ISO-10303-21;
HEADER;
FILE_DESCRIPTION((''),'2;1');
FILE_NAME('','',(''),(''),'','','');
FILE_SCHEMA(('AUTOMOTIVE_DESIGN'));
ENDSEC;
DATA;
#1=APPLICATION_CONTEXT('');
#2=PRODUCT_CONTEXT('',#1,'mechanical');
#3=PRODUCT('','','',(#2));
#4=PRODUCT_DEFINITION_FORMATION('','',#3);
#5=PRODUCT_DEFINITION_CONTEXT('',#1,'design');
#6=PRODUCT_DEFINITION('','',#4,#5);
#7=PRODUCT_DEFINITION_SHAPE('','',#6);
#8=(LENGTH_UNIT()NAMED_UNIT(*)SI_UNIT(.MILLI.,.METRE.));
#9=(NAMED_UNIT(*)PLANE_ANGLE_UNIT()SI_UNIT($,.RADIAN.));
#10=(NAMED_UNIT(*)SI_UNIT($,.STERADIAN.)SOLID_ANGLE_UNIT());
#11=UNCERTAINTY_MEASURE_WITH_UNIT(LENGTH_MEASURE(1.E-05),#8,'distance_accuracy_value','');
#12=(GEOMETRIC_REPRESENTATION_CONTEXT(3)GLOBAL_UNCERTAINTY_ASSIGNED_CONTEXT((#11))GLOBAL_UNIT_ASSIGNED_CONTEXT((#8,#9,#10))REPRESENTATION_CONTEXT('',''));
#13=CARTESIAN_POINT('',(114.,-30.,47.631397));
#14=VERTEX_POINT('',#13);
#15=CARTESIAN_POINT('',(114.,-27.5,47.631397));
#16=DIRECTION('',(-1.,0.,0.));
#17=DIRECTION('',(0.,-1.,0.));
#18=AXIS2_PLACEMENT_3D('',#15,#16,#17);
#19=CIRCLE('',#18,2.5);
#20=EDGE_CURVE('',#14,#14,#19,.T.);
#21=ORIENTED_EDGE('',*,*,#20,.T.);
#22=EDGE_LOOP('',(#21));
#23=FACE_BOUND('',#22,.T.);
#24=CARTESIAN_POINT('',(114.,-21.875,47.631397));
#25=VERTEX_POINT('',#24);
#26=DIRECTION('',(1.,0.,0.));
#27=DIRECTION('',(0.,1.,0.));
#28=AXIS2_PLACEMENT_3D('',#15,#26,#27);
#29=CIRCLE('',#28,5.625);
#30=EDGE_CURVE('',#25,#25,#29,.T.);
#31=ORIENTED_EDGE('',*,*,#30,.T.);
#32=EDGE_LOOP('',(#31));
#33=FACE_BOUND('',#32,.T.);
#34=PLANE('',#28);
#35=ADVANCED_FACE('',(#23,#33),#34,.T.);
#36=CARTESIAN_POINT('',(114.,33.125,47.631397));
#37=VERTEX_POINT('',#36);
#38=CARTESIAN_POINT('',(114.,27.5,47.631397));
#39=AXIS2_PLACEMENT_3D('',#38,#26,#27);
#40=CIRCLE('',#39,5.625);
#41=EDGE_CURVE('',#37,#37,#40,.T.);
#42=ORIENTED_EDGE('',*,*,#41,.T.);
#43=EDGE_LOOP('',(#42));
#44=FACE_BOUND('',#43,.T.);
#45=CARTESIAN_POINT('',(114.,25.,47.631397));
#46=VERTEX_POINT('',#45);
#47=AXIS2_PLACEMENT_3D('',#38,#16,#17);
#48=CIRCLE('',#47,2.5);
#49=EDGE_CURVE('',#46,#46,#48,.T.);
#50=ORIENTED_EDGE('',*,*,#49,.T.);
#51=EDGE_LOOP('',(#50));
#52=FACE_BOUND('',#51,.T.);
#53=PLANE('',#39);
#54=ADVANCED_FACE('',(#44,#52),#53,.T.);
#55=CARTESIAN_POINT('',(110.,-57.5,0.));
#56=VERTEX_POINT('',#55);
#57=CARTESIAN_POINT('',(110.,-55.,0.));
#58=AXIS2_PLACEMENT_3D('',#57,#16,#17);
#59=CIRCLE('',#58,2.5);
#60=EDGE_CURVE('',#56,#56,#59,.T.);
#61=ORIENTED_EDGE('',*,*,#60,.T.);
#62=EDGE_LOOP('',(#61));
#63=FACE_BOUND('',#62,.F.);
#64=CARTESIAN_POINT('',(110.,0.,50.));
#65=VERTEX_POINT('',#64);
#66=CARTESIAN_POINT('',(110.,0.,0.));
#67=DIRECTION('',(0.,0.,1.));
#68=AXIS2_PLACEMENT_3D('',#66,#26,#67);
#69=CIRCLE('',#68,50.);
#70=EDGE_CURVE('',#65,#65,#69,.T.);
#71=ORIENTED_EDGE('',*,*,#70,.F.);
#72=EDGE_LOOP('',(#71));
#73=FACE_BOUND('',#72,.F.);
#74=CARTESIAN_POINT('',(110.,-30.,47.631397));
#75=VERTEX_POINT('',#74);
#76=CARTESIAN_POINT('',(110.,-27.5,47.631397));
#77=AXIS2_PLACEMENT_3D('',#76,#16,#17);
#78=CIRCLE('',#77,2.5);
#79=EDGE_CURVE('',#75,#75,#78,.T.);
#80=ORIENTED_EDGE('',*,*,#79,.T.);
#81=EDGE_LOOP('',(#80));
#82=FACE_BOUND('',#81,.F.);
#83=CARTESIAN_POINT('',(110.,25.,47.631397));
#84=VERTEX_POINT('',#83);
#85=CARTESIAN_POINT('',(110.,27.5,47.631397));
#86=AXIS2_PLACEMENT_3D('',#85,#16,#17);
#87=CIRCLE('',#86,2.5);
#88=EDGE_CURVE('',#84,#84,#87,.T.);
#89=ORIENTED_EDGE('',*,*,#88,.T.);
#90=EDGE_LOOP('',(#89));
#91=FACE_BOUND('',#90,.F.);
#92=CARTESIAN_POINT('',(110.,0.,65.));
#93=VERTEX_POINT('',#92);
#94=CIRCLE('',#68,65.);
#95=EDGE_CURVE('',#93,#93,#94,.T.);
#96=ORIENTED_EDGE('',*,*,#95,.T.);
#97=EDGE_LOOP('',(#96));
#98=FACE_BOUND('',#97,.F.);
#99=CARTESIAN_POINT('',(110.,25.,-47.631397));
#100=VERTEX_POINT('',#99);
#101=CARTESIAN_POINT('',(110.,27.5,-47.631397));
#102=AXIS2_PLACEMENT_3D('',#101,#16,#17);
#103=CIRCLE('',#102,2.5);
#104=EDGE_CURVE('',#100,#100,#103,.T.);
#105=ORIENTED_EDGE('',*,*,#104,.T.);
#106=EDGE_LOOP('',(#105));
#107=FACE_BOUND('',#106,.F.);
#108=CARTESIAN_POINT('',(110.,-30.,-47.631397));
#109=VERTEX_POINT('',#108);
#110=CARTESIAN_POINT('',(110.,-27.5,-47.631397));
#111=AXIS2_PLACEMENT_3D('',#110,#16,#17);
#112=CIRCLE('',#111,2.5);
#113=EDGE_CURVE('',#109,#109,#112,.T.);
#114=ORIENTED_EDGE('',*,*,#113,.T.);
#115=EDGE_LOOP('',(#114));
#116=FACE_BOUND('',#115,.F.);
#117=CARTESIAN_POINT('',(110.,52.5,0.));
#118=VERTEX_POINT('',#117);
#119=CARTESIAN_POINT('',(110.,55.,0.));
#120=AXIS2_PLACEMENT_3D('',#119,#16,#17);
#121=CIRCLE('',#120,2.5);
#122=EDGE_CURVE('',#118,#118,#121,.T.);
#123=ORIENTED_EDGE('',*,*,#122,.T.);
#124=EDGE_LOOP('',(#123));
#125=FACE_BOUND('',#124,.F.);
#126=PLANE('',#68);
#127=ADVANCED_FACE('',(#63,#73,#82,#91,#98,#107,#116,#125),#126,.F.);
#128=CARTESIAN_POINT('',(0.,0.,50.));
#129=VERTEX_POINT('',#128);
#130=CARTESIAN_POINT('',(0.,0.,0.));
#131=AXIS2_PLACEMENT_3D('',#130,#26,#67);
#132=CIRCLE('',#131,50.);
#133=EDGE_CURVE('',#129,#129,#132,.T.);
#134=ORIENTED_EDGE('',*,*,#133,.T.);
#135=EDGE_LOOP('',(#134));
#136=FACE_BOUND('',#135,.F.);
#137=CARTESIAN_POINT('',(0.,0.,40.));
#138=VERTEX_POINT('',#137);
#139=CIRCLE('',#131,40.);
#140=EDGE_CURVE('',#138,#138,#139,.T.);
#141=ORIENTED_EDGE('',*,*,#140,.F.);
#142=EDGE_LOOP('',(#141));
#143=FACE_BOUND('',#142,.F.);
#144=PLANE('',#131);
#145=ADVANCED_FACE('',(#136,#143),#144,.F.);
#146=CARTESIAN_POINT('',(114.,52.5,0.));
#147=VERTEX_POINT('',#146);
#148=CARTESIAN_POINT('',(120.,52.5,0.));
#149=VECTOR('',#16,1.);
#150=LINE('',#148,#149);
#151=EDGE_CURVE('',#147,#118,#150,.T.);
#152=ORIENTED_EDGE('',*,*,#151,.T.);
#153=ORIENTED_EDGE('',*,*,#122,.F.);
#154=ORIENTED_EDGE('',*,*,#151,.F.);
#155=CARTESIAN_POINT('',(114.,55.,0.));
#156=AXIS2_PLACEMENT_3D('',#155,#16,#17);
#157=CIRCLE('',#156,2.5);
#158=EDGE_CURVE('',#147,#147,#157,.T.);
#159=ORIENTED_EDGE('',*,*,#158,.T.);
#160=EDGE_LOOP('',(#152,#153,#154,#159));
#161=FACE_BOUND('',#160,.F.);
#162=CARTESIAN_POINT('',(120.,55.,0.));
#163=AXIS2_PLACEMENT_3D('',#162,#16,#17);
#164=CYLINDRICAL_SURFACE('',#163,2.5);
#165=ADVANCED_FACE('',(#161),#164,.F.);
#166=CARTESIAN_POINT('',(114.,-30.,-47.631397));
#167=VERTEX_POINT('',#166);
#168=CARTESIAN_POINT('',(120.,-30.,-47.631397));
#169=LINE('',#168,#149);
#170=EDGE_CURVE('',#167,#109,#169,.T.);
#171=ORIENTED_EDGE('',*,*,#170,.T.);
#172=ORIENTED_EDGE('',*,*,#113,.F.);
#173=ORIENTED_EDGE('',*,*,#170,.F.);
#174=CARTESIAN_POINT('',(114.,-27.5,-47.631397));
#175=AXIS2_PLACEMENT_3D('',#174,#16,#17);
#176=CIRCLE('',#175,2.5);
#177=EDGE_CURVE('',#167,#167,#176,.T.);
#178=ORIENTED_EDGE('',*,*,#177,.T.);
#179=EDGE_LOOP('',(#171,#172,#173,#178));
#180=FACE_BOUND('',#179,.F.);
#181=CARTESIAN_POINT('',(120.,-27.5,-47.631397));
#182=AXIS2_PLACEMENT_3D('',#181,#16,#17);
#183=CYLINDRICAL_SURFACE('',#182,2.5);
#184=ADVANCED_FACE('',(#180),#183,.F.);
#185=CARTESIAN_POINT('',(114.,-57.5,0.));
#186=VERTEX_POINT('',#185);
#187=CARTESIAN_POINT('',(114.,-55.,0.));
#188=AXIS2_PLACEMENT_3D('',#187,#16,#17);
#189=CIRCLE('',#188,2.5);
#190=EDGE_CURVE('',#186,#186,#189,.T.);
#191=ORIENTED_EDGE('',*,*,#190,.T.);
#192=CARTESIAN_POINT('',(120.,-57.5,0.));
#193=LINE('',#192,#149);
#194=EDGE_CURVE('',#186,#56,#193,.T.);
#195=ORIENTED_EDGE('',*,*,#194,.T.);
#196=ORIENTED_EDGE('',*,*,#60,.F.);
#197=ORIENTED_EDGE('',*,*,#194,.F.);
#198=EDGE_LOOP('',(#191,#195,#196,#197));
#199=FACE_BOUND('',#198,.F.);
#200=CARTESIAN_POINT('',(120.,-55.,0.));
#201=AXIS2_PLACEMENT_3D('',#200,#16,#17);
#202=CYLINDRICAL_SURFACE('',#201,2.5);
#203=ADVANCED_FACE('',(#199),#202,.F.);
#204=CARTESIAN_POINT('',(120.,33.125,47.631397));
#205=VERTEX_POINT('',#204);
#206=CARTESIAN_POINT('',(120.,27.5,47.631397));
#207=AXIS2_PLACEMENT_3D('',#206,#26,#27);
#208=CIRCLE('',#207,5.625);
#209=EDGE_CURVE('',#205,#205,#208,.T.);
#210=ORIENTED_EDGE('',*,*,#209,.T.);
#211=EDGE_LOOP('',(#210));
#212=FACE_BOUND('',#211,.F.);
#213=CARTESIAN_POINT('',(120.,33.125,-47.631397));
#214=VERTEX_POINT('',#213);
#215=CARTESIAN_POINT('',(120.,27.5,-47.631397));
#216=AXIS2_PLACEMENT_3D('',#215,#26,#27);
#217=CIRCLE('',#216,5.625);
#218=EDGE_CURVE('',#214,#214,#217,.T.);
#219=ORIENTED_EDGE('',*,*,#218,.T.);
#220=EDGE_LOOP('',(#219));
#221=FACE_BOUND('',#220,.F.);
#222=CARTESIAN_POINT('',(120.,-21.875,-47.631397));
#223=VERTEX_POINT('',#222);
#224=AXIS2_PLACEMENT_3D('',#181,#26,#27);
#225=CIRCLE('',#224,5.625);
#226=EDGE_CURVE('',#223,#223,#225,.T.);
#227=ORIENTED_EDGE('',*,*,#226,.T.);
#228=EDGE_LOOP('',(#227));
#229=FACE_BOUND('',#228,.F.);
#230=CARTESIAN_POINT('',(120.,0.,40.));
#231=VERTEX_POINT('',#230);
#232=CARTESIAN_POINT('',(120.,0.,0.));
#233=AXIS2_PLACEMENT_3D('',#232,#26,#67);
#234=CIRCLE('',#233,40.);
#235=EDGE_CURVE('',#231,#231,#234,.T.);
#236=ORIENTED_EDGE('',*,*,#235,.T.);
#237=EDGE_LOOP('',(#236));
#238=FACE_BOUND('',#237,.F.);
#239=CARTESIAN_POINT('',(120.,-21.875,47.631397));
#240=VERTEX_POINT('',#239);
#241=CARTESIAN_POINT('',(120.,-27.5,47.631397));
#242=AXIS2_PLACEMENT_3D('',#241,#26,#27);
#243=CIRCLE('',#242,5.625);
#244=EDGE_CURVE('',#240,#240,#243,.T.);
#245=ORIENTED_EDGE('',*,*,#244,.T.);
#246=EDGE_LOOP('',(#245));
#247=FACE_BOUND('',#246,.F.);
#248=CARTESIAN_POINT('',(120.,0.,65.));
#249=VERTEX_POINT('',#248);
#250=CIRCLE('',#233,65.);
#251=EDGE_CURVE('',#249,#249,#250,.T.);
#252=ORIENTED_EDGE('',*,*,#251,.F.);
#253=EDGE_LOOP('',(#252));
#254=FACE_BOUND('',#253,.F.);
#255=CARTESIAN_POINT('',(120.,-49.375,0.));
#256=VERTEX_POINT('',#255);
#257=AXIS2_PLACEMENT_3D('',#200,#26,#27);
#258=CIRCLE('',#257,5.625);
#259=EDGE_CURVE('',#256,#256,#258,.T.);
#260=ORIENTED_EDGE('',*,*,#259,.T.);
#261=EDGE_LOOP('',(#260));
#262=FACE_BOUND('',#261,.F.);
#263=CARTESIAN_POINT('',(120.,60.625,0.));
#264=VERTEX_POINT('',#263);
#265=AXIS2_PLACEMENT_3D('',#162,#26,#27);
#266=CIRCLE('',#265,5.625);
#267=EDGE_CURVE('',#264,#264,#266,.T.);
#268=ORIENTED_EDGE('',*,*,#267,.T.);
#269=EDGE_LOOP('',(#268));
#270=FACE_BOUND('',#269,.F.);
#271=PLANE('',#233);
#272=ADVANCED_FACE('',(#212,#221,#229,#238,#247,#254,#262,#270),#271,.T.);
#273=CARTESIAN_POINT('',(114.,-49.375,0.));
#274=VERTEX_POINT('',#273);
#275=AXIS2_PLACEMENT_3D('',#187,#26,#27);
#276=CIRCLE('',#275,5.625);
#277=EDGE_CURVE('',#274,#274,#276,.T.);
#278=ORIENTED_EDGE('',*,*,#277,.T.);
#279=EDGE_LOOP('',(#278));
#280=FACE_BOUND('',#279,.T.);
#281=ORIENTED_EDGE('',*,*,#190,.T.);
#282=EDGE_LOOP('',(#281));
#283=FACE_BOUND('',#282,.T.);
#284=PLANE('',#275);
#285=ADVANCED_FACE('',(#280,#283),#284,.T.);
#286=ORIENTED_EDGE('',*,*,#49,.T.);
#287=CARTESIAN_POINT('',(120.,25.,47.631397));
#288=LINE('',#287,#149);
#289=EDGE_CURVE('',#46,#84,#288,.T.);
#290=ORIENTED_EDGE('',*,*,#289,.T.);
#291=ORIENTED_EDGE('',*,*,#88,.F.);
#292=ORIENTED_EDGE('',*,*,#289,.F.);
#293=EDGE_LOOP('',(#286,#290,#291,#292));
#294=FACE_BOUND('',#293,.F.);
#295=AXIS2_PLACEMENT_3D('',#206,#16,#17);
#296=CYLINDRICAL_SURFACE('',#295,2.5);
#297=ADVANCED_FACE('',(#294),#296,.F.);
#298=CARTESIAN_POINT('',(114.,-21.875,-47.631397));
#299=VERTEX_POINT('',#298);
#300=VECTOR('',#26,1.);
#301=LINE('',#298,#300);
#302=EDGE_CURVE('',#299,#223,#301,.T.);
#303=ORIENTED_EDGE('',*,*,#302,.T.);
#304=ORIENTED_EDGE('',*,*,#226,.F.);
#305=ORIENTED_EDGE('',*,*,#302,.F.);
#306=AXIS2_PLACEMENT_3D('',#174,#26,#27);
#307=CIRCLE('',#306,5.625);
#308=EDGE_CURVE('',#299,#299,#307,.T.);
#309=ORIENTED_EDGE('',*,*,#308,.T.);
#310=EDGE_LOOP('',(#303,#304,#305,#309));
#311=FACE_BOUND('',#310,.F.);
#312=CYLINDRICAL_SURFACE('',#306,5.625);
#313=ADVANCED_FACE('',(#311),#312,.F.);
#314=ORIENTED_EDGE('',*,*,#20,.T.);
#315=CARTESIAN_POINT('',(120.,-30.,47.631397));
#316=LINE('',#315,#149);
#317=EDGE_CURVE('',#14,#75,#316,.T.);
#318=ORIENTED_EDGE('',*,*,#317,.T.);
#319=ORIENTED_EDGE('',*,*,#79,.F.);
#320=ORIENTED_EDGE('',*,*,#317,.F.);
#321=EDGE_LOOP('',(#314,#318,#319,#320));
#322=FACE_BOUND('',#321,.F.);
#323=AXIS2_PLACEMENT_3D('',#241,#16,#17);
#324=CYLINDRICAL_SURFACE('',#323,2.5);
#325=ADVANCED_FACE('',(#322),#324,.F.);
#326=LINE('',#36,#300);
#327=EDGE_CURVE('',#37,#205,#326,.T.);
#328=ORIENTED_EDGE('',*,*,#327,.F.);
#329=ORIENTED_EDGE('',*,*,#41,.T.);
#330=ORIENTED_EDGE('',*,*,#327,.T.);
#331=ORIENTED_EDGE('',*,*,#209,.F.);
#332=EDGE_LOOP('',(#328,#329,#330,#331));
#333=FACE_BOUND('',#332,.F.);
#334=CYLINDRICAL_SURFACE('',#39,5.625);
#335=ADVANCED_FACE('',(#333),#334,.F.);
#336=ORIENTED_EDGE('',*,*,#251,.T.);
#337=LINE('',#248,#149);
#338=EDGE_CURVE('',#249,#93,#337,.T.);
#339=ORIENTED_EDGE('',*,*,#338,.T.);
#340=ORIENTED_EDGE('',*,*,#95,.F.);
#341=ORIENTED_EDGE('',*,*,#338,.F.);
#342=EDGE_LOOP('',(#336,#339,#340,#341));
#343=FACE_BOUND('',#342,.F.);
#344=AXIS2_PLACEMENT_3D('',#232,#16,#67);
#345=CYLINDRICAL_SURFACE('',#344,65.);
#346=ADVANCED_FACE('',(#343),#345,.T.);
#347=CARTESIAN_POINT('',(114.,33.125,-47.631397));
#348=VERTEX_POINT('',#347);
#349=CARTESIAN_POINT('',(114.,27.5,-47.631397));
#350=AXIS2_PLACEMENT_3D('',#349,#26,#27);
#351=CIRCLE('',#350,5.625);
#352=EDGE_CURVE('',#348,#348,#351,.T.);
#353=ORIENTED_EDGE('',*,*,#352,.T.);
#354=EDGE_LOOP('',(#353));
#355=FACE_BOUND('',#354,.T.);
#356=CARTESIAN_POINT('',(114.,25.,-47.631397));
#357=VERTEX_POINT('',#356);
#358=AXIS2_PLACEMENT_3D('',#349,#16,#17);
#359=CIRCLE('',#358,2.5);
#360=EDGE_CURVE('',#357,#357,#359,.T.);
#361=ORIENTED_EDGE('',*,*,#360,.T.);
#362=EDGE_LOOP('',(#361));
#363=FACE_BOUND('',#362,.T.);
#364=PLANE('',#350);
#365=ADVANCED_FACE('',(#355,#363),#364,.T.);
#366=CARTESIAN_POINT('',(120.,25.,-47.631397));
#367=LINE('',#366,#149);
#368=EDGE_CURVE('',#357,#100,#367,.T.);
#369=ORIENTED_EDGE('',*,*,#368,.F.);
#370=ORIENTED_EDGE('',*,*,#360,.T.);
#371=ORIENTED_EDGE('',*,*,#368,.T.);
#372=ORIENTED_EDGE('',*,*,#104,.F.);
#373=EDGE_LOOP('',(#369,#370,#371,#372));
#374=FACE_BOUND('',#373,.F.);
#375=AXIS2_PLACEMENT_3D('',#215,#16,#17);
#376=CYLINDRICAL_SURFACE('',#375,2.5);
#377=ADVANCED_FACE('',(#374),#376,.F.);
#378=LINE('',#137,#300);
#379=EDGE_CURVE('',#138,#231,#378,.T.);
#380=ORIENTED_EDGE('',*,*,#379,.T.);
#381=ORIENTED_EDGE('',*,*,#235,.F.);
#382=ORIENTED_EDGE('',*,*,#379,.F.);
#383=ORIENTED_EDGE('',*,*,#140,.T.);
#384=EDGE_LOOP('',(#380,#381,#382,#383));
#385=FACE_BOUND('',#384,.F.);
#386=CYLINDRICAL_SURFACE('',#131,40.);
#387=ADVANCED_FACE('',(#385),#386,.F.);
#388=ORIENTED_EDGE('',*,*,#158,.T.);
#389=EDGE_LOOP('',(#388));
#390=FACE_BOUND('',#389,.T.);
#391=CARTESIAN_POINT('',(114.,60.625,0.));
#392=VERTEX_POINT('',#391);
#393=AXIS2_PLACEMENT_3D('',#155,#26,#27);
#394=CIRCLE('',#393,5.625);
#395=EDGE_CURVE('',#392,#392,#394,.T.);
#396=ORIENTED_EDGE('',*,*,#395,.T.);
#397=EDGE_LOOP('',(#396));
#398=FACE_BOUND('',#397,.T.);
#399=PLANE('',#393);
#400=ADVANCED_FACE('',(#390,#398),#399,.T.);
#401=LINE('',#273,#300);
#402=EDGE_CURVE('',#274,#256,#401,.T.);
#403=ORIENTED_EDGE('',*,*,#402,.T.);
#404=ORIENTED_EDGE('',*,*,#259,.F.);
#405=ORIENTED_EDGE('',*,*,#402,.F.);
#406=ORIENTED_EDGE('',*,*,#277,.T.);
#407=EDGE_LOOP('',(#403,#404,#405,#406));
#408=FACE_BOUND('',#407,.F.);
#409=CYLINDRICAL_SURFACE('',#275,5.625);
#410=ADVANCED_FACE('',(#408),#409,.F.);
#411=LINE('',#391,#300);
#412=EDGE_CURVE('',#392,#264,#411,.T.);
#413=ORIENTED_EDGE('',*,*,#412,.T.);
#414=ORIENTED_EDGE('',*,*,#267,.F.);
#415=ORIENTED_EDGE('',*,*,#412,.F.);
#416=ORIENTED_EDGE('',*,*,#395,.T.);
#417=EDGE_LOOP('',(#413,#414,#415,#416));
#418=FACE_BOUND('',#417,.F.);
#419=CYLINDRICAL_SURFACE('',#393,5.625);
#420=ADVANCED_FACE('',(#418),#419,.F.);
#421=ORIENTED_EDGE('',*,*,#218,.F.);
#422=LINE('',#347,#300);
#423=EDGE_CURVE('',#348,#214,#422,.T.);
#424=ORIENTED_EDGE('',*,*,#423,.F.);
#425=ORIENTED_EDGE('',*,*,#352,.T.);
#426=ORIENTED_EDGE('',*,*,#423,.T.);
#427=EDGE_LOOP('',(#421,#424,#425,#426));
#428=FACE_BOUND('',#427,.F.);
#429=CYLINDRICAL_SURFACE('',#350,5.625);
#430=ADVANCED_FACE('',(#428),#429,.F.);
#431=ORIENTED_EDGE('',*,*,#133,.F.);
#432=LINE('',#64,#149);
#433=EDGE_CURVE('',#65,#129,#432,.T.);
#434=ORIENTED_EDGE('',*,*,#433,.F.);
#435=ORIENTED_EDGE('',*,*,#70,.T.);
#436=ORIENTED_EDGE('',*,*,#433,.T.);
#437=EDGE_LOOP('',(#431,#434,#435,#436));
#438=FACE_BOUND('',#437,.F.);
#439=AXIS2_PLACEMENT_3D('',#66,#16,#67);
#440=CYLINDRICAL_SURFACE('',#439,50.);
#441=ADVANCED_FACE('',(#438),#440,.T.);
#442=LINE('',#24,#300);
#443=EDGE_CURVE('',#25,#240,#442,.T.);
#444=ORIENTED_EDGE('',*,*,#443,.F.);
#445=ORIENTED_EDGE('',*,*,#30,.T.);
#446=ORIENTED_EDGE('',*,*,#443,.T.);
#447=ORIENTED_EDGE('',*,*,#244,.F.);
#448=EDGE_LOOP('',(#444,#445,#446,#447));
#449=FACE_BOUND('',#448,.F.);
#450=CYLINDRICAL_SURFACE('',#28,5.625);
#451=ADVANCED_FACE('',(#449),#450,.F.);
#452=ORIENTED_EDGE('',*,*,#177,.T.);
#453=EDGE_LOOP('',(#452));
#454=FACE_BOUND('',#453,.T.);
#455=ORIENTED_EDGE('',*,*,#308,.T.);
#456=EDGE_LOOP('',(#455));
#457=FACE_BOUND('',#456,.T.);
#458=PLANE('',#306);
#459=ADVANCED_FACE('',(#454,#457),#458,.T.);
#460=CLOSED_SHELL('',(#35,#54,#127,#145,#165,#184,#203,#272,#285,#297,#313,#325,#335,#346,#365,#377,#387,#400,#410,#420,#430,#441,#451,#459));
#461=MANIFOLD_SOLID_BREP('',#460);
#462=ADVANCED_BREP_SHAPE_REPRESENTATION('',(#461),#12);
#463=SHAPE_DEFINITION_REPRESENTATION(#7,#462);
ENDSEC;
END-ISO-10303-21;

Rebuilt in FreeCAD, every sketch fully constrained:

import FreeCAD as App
import Part
import Sketcher

V = App.Vector


def add_polygon(sketch, points):
    """Adds a closed chain of lines whose ends are joined by coincident constraints."""
    first, n = sketch.GeometryCount, len(points)
    for a, b in zip(points, points[1:] + points[:1]):
        sketch.addGeometry(Part.LineSegment(App.Vector(*a, 0), App.Vector(*b, 0)), False)
    for i in range(n):
        sketch.addConstraint(Sketcher.Constraint("Coincident", first + i, 2, first + (i + 1) % n, 1))

doc = App.newDocument("Part")
body = doc.addObject("PartDesign::Body", "Body")

# Sketch on XZ plane
sketch1 = body.newObject("Sketcher::SketchObject", "Sketch")
sketch1.AttachmentSupport = (doc.getObject("XZ_Plane"), [""])
sketch1.MapMode = "FlatFace"
add_polygon(sketch1, [(0, 50), (0, 40), (120, 40), (120, 65), (110, 65), (110, 50)])  # lines 0-5
sketch1.addConstraint(Sketcher.Constraint("Vertical", 0))
sketch1.addConstraint(Sketcher.Constraint("Horizontal", 1))
sketch1.addConstraint(Sketcher.Constraint("Vertical", 2))
sketch1.addConstraint(Sketcher.Constraint("Horizontal", 3))
sketch1.addConstraint(Sketcher.Constraint("Vertical", 4))
sketch1.addConstraint(Sketcher.Constraint("Horizontal", 5))
sketch1.addConstraint(Sketcher.Constraint("PointOnObject", 0, 2, -2))
sketch1.addConstraint(Sketcher.Constraint("Equal", 3, 0))
sketch1.addConstraint(Sketcher.Constraint("DistanceX", 1, 1, 1, 2, 120.0))
sketch1.addConstraint(Sketcher.Constraint("DistanceX", 3, 2, 3, 1, 10.0))
sketch1.addConstraint(Sketcher.Constraint("DistanceY", 2, 1, 2, 2, 25.0))
sketch1.addConstraint(Sketcher.Constraint("DistanceY", -1, 1, 0, 2, 40.0))
revolution = body.newObject("PartDesign::Revolution", "Revolution")
revolution.Profile = sketch1
revolution.ReferenceAxis = (sketch1, ["H_Axis"])
revolution.Angle = 360

# Sketch on YZ plane
sketch2 = body.newObject("Sketcher::SketchObject", "Sketch001")
sketch2.AttachmentSupport = (doc.getObject("YZ_Plane"), [""])
sketch2.MapMode = "FlatFace"
sketch2.AttachmentOffset = App.Placement(V(0, 0, 120), App.Rotation())
sketch2.addGeometry(Part.Circle(V(-27.5, 47.6, 0), V(0, 0, 1), 2.5), False)
sketch2.addGeometry(Part.Circle(V(27.5, 47.6, 0), V(0, 0, 1), 2.5), False)
sketch2.addGeometry(Part.Circle(V(55, 0, 0), V(0, 0, 1), 2.5), False)
sketch2.addGeometry(Part.Circle(V(27.5, -47.6, 0), V(0, 0, 1), 2.5), False)
sketch2.addGeometry(Part.Circle(V(-27.5, -47.6, 0), V(0, 0, 1), 2.5), False)
sketch2.addGeometry(Part.Circle(V(-55, 0, 0), V(0, 0, 1), 2.5), False)
sketch2.addConstraint(Sketcher.Constraint("Equal", 0, 1))
sketch2.addConstraint(Sketcher.Constraint("Equal", 1, 2))
sketch2.addConstraint(Sketcher.Constraint("Equal", 2, 3))
sketch2.addConstraint(Sketcher.Constraint("Equal", 3, 4))
sketch2.addConstraint(Sketcher.Constraint("Equal", 4, 5))
sketch2.addConstraint(Sketcher.Constraint("Symmetric", 0, 3, 3, 3, -1, 1))
sketch2.addConstraint(Sketcher.Constraint("Symmetric", 1, 3, 4, 3, -1, 1))
sketch2.addConstraint(Sketcher.Constraint("Symmetric", 2, 3, 5, 3, -1, 1))
sketch2.addConstraint(Sketcher.Constraint("Symmetric", 0, 3, 1, 3, -2))
sketch2.addConstraint(Sketcher.Constraint("PointOnObject", 2, 3, -1))
sketch2.addConstraint(Sketcher.Constraint("Diameter", 0, 5.0))
sketch2.addConstraint(Sketcher.Constraint("DistanceX", -1, 1, 2, 3, 55.0))
sketch2.addConstraint(Sketcher.Constraint("DistanceX", 0, 3, 1, 3, 55.0))
sketch2.addConstraint(Sketcher.Constraint("DistanceY", -1, 1, 0, 3, 47.631397))
doc.recompute()
hole = body.newObject("PartDesign::Hole", "Hole")
hole.Profile = sketch2
hole.ThreadType = "None"
hole.Diameter = 5
hole.DepthType = "ThroughAll"
hole.HoleCutType = "Counterbore"
hole.HoleCutDiameter = 11.25
hole.HoleCutDepth = 6

doc.recompute()
